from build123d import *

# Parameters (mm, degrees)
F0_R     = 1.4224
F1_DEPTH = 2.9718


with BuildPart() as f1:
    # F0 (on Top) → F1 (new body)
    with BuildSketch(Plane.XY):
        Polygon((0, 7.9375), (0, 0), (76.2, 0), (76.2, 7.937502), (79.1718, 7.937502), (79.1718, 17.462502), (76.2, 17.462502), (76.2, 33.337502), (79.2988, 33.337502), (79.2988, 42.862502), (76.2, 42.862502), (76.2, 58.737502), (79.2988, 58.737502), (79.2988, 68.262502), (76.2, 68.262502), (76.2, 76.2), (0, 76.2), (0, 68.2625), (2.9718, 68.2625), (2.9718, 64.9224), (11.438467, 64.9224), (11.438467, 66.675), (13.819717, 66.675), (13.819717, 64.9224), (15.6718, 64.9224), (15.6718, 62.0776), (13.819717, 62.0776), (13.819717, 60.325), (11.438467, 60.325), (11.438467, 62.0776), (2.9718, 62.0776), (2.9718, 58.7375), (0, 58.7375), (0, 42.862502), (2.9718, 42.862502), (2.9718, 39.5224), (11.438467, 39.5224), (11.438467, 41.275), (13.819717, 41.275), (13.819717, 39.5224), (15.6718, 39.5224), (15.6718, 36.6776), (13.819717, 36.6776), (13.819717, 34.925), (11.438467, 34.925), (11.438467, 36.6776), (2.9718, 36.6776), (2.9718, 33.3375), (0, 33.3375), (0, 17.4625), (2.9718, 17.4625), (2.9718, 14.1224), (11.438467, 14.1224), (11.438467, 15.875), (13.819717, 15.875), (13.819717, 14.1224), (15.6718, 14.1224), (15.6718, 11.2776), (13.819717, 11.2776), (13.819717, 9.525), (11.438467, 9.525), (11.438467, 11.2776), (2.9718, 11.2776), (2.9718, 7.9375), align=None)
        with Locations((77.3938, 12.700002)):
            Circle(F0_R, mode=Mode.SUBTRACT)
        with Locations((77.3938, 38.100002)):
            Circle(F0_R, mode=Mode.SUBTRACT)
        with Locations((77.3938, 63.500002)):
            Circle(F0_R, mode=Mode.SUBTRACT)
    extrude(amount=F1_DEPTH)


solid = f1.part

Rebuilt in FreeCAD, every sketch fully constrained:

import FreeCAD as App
import Part
import Sketcher
Q = App.Units.Quantity

doc = App.newDocument("Part")
body = doc.addObject("PartDesign::Body", "Body")

# Sketch on XY plane
sketch1 = body.newObject("Sketcher::SketchObject", "Sketch")
sketch1.AttachmentSupport = (doc.getObject("XY_Plane"), [""])
sketch1.MapMode = "FlatFace"
sketch1.addGeometry([
    Part.LineSegment(App.Vector(0, 7.9, 0), App.Vector(0, 0, 0)),  # 0
    Part.LineSegment(App.Vector(0, 0, 0), App.Vector(76.2, 0, 0)),  # 1
    Part.LineSegment(App.Vector(76.2, 0, 0), App.Vector(76.2, 7.9, 0)),  # 2
    Part.LineSegment(App.Vector(76.2, 7.9, 0), App.Vector(79.2, 7.9, 0)),  # 3
    Part.LineSegment(App.Vector(79.2, 7.9, 0), App.Vector(79.2, 17.5, 0)),  # 4
    Part.LineSegment(App.Vector(79.2, 17.5, 0), App.Vector(76.2, 17.5, 0)),  # 5
    Part.LineSegment(App.Vector(76.2, 17.5, 0), App.Vector(76.2, 33.3, 0)),  # 6
    Part.LineSegment(App.Vector(76.2, 33.3, 0), App.Vector(79.3, 33.3, 0)),  # 7
    Part.LineSegment(App.Vector(79.3, 33.3, 0), App.Vector(79.3, 42.9, 0)),  # 8
    Part.LineSegment(App.Vector(79.3, 42.9, 0), App.Vector(76.2, 42.9, 0)),  # 9
    Part.LineSegment(App.Vector(76.2, 42.9, 0), App.Vector(76.2, 58.7, 0)),  # 10
    Part.LineSegment(App.Vector(76.2, 58.7, 0), App.Vector(79.3, 58.7, 0)),  # 11
    Part.LineSegment(App.Vector(79.3, 58.7, 0), App.Vector(79.3, 68.3, 0)),  # 12
    Part.LineSegment(App.Vector(79.3, 68.3, 0), App.Vector(76.2, 68.3, 0)),  # 13
    Part.LineSegment(App.Vector(76.2, 68.3, 0), App.Vector(76.2, 76.2, 0)),  # 14
    Part.LineSegment(App.Vector(76.2, 76.2, 0), App.Vector(0, 76.2, 0)),  # 15
    Part.LineSegment(App.Vector(0, 76.2, 0), App.Vector(0, 68.3, 0)),  # 16
    Part.LineSegment(App.Vector(0, 68.3, 0), App.Vector(3, 68.3, 0)),  # 17
    Part.LineSegment(App.Vector(3, 68.3, 0), App.Vector(3, 64.9, 0)),  # 18
    Part.LineSegment(App.Vector(3, 64.9, 0), App.Vector(11.4, 64.9, 0)),  # 19
    Part.LineSegment(App.Vector(11.4, 64.9, 0), App.Vector(11.4, 66.7, 0)),  # 20
    Part.LineSegment(App.Vector(11.4, 66.7, 0), App.Vector(13.8, 66.7, 0)),  # 21
    Part.LineSegment(App.Vector(13.8, 66.7, 0), App.Vector(13.8, 64.9, 0)),  # 22
    Part.LineSegment(App.Vector(13.8, 64.9, 0), App.Vector(15.7, 64.9, 0)),  # 23
    Part.LineSegment(App.Vector(15.7, 64.9, 0), App.Vector(15.7, 62.1, 0)),  # 24
    Part.LineSegment(App.Vector(15.7, 62.1, 0), App.Vector(13.8, 62.1, 0)),  # 25
    Part.LineSegment(App.Vector(13.8, 62.1, 0), App.Vector(13.8, 60.3, 0)),  # 26
    Part.LineSegment(App.Vector(13.8, 60.3, 0), App.Vector(11.4, 60.3, 0)),  # 27
    Part.LineSegment(App.Vector(11.4, 60.3, 0), App.Vector(11.4, 62.1, 0)),  # 28
    Part.LineSegment(App.Vector(11.4, 62.1, 0), App.Vector(3, 62.1, 0)),  # 29
    Part.LineSegment(App.Vector(3, 62.1, 0), App.Vector(3, 58.7, 0)),  # 30
    Part.LineSegment(App.Vector(3, 58.7, 0), App.Vector(0, 58.7, 0)),  # 31
    Part.LineSegment(App.Vector(0, 58.7, 0), App.Vector(0, 42.9, 0)),  # 32
    Part.LineSegment(App.Vector(0, 42.9, 0), App.Vector(3, 42.9, 0)),  # 33
    Part.LineSegment(App.Vector(3, 42.9, 0), App.Vector(3, 39.5, 0)),  # 34
    Part.LineSegment(App.Vector(3, 39.5, 0), App.Vector(11.4, 39.5, 0)),  # 35
    Part.LineSegment(App.Vector(11.4, 39.5, 0), App.Vector(11.4, 41.3, 0)),  # 36
    Part.LineSegment(App.Vector(11.4, 41.3, 0), App.Vector(13.8, 41.3, 0)),  # 37
    Part.LineSegment(App.Vector(13.8, 41.3, 0), App.Vector(13.8, 39.5, 0)),  # 38
    Part.LineSegment(App.Vector(13.8, 39.5, 0), App.Vector(15.7, 39.5, 0)),  # 39
    Part.LineSegment(App.Vector(15.7, 39.5, 0), App.Vector(15.7, 36.7, 0)),  # 40
    Part.LineSegment(App.Vector(15.7, 36.7, 0), App.Vector(13.8, 36.7, 0)),  # 41
    Part.LineSegment(App.Vector(13.8, 36.7, 0), App.Vector(13.8, 34.9, 0)),  # 42
    Part.LineSegment(App.Vector(13.8, 34.9, 0), App.Vector(11.4, 34.9, 0)),  # 43
    Part.LineSegment(App.Vector(11.4, 34.9, 0), App.Vector(11.4, 36.7, 0)),  # 44
    Part.LineSegment(App.Vector(11.4, 36.7, 0), App.Vector(3, 36.7, 0)),  # 45
    Part.LineSegment(App.Vector(3, 36.7, 0), App.Vector(3, 33.3, 0)),  # 46
    Part.LineSegment(App.Vector(3, 33.3, 0), App.Vector(0, 33.3, 0)),  # 47
    Part.LineSegment(App.Vector(0, 33.3, 0), App.Vector(0, 17.5, 0)),  # 48
    Part.LineSegment(App.Vector(0, 17.5, 0), App.Vector(3, 17.5, 0)),  # 49
    Part.LineSegment(App.Vector(3, 17.5, 0), App.Vector(3, 14.1, 0)),  # 50
    Part.LineSegment(App.Vector(3, 14.1, 0), App.Vector(11.4, 14.1, 0)),  # 51
    Part.LineSegment(App.Vector(11.4, 14.1, 0), App.Vector(11.4, 15.9, 0)),  # 52
    Part.LineSegment(App.Vector(11.4, 15.9, 0), App.Vector(13.8, 15.9, 0)),  # 53
    Part.LineSegment(App.Vector(13.8, 15.9, 0), App.Vector(13.8, 14.1, 0)),  # 54
    Part.LineSegment(App.Vector(13.8, 14.1, 0), App.Vector(15.7, 14.1, 0)),  # 55
    Part.LineSegment(App.Vector(15.7, 14.1, 0), App.Vector(15.7, 11.3, 0)),  # 56
    Part.LineSegment(App.Vector(15.7, 11.3, 0), App.Vector(13.8, 11.3, 0)),  # 57
    Part.LineSegment(App.Vector(13.8, 11.3, 0), App.Vector(13.8, 9.5, 0)),  # 58
    Part.LineSegment(App.Vector(13.8, 9.5, 0), App.Vector(11.4, 9.5, 0)),  # 59
    Part.LineSegment(App.Vector(11.4, 9.5, 0), App.Vector(11.4, 11.3, 0)),  # 60
    Part.LineSegment(App.Vector(11.4, 11.3, 0), App.Vector(3, 11.3, 0)),  # 61
    Part.LineSegment(App.Vector(3, 11.3, 0), App.Vector(3, 7.9, 0)),  # 62
    Part.LineSegment(App.Vector(3, 7.9, 0), App.Vector(0, 7.9, 0)),  # 63
    Part.Circle(App.Vector(77.4, 12.7, 0), App.Vector(0, 0, 1), 1.4),  # 64
    Part.Circle(App.Vector(77.4, 38.1, 0), App.Vector(0, 0, 1), 1.4),  # 65
    Part.Circle(App.Vector(77.4, 63.5, 0), App.Vector(0, 0, 1), 1.4),  # 66
], False)
sketch1.addConstraint([
    Sketcher.Constraint("Coincident", 0, 2, 1, 1),
    Sketcher.Constraint("Coincident", 1, 2, 2, 1),
    Sketcher.Constraint("Coincident", 2, 2, 3, 1),
    Sketcher.Constraint("Coincident", 3, 2, 4, 1),
    Sketcher.Constraint("Coincident", 4, 2, 5, 1),
    Sketcher.Constraint("Coincident", 5, 2, 6, 1),
    Sketcher.Constraint("Coincident", 6, 2, 7, 1),
    Sketcher.Constraint("Coincident", 7, 2, 8, 1),
    Sketcher.Constraint("Coincident", 8, 2, 9, 1),
    Sketcher.Constraint("Coincident", 9, 2, 10, 1),
    Sketcher.Constraint("Coincident", 10, 2, 11, 1),
    Sketcher.Constraint("Coincident", 11, 2, 12, 1),
    Sketcher.Constraint("Coincident", 12, 2, 13, 1),
    Sketcher.Constraint("Coincident", 13, 2, 14, 1),
    Sketcher.Constraint("Coincident", 14, 2, 15, 1),
    Sketcher.Constraint("Coincident", 15, 2, 16, 1),
    Sketcher.Constraint("Coincident", 16, 2, 17, 1),
    Sketcher.Constraint("Coincident", 17, 2, 18, 1),
    Sketcher.Constraint("Coincident", 18, 2, 19, 1),
    Sketcher.Constraint("Coincident", 19, 2, 20, 1),
    Sketcher.Constraint("Coincident", 20, 2, 21, 1),
    Sketcher.Constraint("Coincident", 21, 2, 22, 1),
    Sketcher.Constraint("Coincident", 22, 2, 23, 1),
    Sketcher.Constraint("Coincident", 23, 2, 24, 1),
    Sketcher.Constraint("Coincident", 24, 2, 25, 1),
    Sketcher.Constraint("Coincident", 25, 2, 26, 1),
    Sketcher.Constraint("Coincident", 26, 2, 27, 1),
    Sketcher.Constraint("Coincident", 27, 2, 28, 1),
    Sketcher.Constraint("Coincident", 28, 2, 29, 1),
    Sketcher.Constraint("Coincident", 29, 2, 30, 1),
    Sketcher.Constraint("Coincident", 30, 2, 31, 1),
    Sketcher.Constraint("Coincident", 31, 2, 32, 1),
    Sketcher.Constraint("Coincident", 32, 2, 33, 1),
    Sketcher.Constraint("Coincident", 33, 2, 34, 1),
    Sketcher.Constraint("Coincident", 34, 2, 35, 1),
    Sketcher.Constraint("Coincident", 35, 2, 36, 1),
    Sketcher.Constraint("Coincident", 36, 2, 37, 1),
    Sketcher.Constraint("Coincident", 37, 2, 38, 1),
    Sketcher.Constraint("Coincident", 38, 2, 39, 1),
    Sketcher.Constraint("Coincident", 39, 2, 40, 1),
    Sketcher.Constraint("Coincident", 40, 2, 41, 1),
    Sketcher.Constraint("Coincident", 41, 2, 42, 1),
    Sketcher.Constraint("Coincident", 42, 2, 43, 1),
    Sketcher.Constraint("Coincident", 43, 2, 44, 1),
    Sketcher.Constraint("Coincident", 44, 2, 45, 1),
    Sketcher.Constraint("Coincident", 45, 2, 46, 1),
    Sketcher.Constraint("Coincident", 46, 2, 47, 1),
    Sketcher.Constraint("Coincident", 47, 2, 48, 1),
    Sketcher.Constraint("Coincident", 48, 2, 49, 1),
    Sketcher.Constraint("Coincident", 49, 2, 50, 1),
    Sketcher.Constraint("Coincident", 50, 2, 51, 1),
    Sketcher.Constraint("Coincident", 51, 2, 52, 1),
    Sketcher.Constraint("Coincident", 52, 2, 53, 1),
    Sketcher.Constraint("Coincident", 53, 2, 54, 1),
    Sketcher.Constraint("Coincident", 54, 2, 55, 1),
    Sketcher.Constraint("Coincident", 55, 2, 56, 1),
    Sketcher.Constraint("Coincident", 56, 2, 57, 1),
    Sketcher.Constraint("Coincident", 57, 2, 58, 1),
    Sketcher.Constraint("Coincident", 58, 2, 59, 1),
    Sketcher.Constraint("Coincident", 59, 2, 60, 1),
    Sketcher.Constraint("Coincident", 60, 2, 61, 1),
    Sketcher.Constraint("Coincident", 61, 2, 62, 1),
    Sketcher.Constraint("Coincident", 62, 2, 63, 1),
    Sketcher.Constraint("Coincident", 63, 2, 0, 1),
    Sketcher.Constraint("Vertical", 0),
    Sketcher.Constraint("Horizontal", 1),
    Sketcher.Constraint("Vertical", 2),
    Sketcher.Constraint("Horizontal", 3),
    Sketcher.Constraint("Vertical", 4),
    Sketcher.Constraint("Horizontal", 5),
    Sketcher.Constraint("Vertical", 6),
    Sketcher.Constraint("Horizontal", 7),
    Sketcher.Constraint("Vertical", 8),
    Sketcher.Constraint("Horizontal", 9),
    Sketcher.Constraint("Vertical", 10),
    Sketcher.Constraint("Horizontal", 11),
    Sketcher.Constraint("Vertical", 12),
    Sketcher.Constraint("Horizontal", 13),
    Sketcher.Constraint("Vertical", 14),
    Sketcher.Constraint("Horizontal", 15),
    Sketcher.Constraint("Vertical", 16),
    Sketcher.Constraint("Horizontal", 17),
    Sketcher.Constraint("Vertical", 18),
    Sketcher.Constraint("Horizontal", 19),
    Sketcher.Constraint("Vertical", 20),
    Sketcher.Constraint("Horizontal", 21),
    Sketcher.Constraint("Vertical", 22),
    Sketcher.Constraint("Horizontal", 23),
    Sketcher.Constraint("Vertical", 24),
    Sketcher.Constraint("Horizontal", 25),
    Sketcher.Constraint("Vertical", 26),
    Sketcher.Constraint("Horizontal", 27),
    Sketcher.Constraint("Vertical", 28),
    Sketcher.Constraint("Horizontal", 29),
    Sketcher.Constraint("Vertical", 30),
    Sketcher.Constraint("Horizontal", 31),
    Sketcher.Constraint("Vertical", 32),
    Sketcher.Constraint("Horizontal", 33),
    Sketcher.Constraint("Vertical", 34),
    Sketcher.Constraint("Horizontal", 35),
    Sketcher.Constraint("Vertical", 36),
    Sketcher.Constraint("Horizontal", 37),
    Sketcher.Constraint("Vertical", 38),
    Sketcher.Constraint("Horizontal", 39),
    Sketcher.Constraint("Vertical", 40),
    Sketcher.Constraint("Horizontal", 41),
    Sketcher.Constraint("Vertical", 42),
    Sketcher.Constraint("Horizontal", 43),
    Sketcher.Constraint("Vertical", 44),
    Sketcher.Constraint("Horizontal", 45),
    Sketcher.Constraint("Vertical", 46),
    Sketcher.Constraint("Horizontal", 47),
    Sketcher.Constraint("Vertical", 48),
    Sketcher.Constraint("Horizontal", 49),
    Sketcher.Constraint("Vertical", 50),
    Sketcher.Constraint("Horizontal", 51),
    Sketcher.Constraint("Vertical", 52),
    Sketcher.Constraint("Horizontal", 53),
    Sketcher.Constraint("Vertical", 54),
    Sketcher.Constraint("Horizontal", 55),
    Sketcher.Constraint("Vertical", 56),
    Sketcher.Constraint("Horizontal", 57),
    Sketcher.Constraint("Vertical", 58),
    Sketcher.Constraint("Horizontal", 59),
    Sketcher.Constraint("Vertical", 60),
    Sketcher.Constraint("Horizontal", 61),
    Sketcher.Constraint("Vertical", 62),
    Sketcher.Constraint("Horizontal", 63),
    Sketcher.Constraint("Coincident", 0, 2, -1, 1),
    Sketcher.Constraint("Equal", 64, 65),
    Sketcher.Constraint("Equal", 65, 66),
    Sketcher.Constraint("PointOnObject", 15, 2, -2),
    Sketcher.Constraint("PointOnObject", 31, 2, -2),
    Sketcher.Constraint("PointOnObject", 47, 2, -2),
    Sketcher.Constraint("Horizontal", 13, 2, 16, 2),
    Sketcher.Constraint("Horizontal", 19, 2, 22, 2),
    Sketcher.Constraint("Horizontal", 25, 2, 28, 2),
    Sketcher.Constraint("Horizontal", 9, 2, 32, 2),
    Sketcher.Constraint("Horizontal", 35, 2, 38, 2),
    Sketcher.Constraint("Horizontal", 41, 2, 44, 2),
    Sketcher.Constraint("Horizontal", 51, 2, 54, 2),
    Sketcher.Constraint("Horizontal", 57, 2, 60, 2),
    Sketcher.Constraint("Vertical", 64, 3, 65, 3),
    Sketcher.Constraint("Vertical", 65, 3, 66, 3),
    Sketcher.Constraint("Vertical", 2, 2, 5, 2),
    Sketcher.Constraint("Vertical", 6, 2, 9, 2),
    Sketcher.Constraint("Vertical", 8, 2, 11, 2),
    Sketcher.Constraint("Vertical", 10, 2, 13, 2),
    Sketcher.Constraint("Vertical", 22, 2, 25, 2),
    Sketcher.Constraint("Vertical", 20, 2, 27, 2),
    Sketcher.Constraint("Vertical", 18, 2, 29, 2),
    Sketcher.Constraint("Vertical", 30, 2, 33, 2),
    Sketcher.Constraint("Vertical", 28, 2, 35, 2),
    Sketcher.Constraint("Vertical", 26, 2, 37, 2),
    Sketcher.Constraint("Vertical", 24, 2, 39, 2),
    Sketcher.Constraint("Vertical", 38, 2, 41, 2),
    Sketcher.Constraint("Vertical", 36, 2, 43, 2),
    Sketcher.Constraint("Vertical", 34, 2, 45, 2),
    Sketcher.Constraint("Vertical", 46, 2, 49, 2),
    Sketcher.Constraint("Vertical", 44, 2, 51, 2),
    Sketcher.Constraint("Vertical", 42, 2, 53, 2),
    Sketcher.Constraint("Vertical", 40, 2, 55, 2),
    Sketcher.Constraint("Vertical", 54, 2, 57, 2),
    Sketcher.Constraint("Vertical", 52, 2, 59, 2),
    Sketcher.Constraint("Vertical", 50, 2, 61, 2),
    Sketcher.Constraint("Equal", 5, 17),
    Sketcher.Constraint("Equal", 4, 8),
    Sketcher.Constraint("Equal", 6, 10),
    Sketcher.Constraint("Equal", 8, 12),
    Sketcher.Constraint("Equal", 0, 14),
    Sketcher.Constraint("Equal", 22, 26),
    Sketcher.Constraint("Equal", 18, 30),
    Sketcher.Constraint("Equal", 18, 34),
    Sketcher.Constraint("Equal", 28, 36),
    Sketcher.Constraint("Equal", 24, 40),
    Sketcher.Constraint("Equal", 38, 42),
    Sketcher.Constraint("Equal", 30, 46),
    Sketcher.Constraint("Equal", 10, 48),
    Sketcher.Constraint("Equal", 46, 50),
    Sketcher.Constraint("Equal", 44, 52),
    Sketcher.Constraint("Equal", 40, 56),
    Sketcher.Constraint("Equal", 54, 58),
    Sketcher.Constraint("Equal", 50, 62),
    Sketcher.Constraint("DistanceX", 1, 1, 1, 2, Q("3 in")),
    Sketcher.Constraint("Diameter", 64, Q("0.112 in")),
    Sketcher.Constraint("DistanceY", -1, 1, 14, 2, Q("3 in")),
    Sketcher.Constraint("DistanceY", -1, 1, 64, 3, Q("0.5000001 in")),
    Sketcher.Constraint("DistanceY", -1, 1, 65, 3, Q("1.5000001 in")),
    Sketcher.Constraint("DistanceY", -1, 1, 66, 3, Q("2.5000001 in")),
    Sketcher.Constraint("DistanceX", 3, 1, 3, 2, Q("0.117 in")),
    Sketcher.Constraint("DistanceX", 7, 1, 7, 2, Q("0.122 in")),
    Sketcher.Constraint("DistanceX", 21, 1, 21, 2, Q("0.09375 in")),
    Sketcher.Constraint("DistanceY", 0, 2, 0, 1, Q("0.3125 in")),
    Sketcher.Constraint("DistanceY", 2, 1, 2, 2, Q("0.3125001 in")),
    Sketcher.Constraint("DistanceY", 4, 1, 4, 2, Q("0.375 in")),
    Sketcher.Constraint("DistanceY", 20, 1, 20, 2, Q("0.069 in")),
    Sketcher.Constraint("DistanceY", 24, 2, 24, 1, Q("0.112 in")),
    Sketcher.Constraint("DistanceX", -1, 1, 64, 3, Q("3.047 in")),
    Sketcher.Constraint("DistanceX", -1, 1, 23, 2, Q("0.617 in")),
    Sketcher.Constraint("DistanceX", 19, 1, 19, 2, Q("8.466667 mm")),
])
pad1 = body.newObject("PartDesign::Pad", "Pad")
pad1.Profile = sketch1
pad1.Length = Q("0.117 in")

doc.recompute()
